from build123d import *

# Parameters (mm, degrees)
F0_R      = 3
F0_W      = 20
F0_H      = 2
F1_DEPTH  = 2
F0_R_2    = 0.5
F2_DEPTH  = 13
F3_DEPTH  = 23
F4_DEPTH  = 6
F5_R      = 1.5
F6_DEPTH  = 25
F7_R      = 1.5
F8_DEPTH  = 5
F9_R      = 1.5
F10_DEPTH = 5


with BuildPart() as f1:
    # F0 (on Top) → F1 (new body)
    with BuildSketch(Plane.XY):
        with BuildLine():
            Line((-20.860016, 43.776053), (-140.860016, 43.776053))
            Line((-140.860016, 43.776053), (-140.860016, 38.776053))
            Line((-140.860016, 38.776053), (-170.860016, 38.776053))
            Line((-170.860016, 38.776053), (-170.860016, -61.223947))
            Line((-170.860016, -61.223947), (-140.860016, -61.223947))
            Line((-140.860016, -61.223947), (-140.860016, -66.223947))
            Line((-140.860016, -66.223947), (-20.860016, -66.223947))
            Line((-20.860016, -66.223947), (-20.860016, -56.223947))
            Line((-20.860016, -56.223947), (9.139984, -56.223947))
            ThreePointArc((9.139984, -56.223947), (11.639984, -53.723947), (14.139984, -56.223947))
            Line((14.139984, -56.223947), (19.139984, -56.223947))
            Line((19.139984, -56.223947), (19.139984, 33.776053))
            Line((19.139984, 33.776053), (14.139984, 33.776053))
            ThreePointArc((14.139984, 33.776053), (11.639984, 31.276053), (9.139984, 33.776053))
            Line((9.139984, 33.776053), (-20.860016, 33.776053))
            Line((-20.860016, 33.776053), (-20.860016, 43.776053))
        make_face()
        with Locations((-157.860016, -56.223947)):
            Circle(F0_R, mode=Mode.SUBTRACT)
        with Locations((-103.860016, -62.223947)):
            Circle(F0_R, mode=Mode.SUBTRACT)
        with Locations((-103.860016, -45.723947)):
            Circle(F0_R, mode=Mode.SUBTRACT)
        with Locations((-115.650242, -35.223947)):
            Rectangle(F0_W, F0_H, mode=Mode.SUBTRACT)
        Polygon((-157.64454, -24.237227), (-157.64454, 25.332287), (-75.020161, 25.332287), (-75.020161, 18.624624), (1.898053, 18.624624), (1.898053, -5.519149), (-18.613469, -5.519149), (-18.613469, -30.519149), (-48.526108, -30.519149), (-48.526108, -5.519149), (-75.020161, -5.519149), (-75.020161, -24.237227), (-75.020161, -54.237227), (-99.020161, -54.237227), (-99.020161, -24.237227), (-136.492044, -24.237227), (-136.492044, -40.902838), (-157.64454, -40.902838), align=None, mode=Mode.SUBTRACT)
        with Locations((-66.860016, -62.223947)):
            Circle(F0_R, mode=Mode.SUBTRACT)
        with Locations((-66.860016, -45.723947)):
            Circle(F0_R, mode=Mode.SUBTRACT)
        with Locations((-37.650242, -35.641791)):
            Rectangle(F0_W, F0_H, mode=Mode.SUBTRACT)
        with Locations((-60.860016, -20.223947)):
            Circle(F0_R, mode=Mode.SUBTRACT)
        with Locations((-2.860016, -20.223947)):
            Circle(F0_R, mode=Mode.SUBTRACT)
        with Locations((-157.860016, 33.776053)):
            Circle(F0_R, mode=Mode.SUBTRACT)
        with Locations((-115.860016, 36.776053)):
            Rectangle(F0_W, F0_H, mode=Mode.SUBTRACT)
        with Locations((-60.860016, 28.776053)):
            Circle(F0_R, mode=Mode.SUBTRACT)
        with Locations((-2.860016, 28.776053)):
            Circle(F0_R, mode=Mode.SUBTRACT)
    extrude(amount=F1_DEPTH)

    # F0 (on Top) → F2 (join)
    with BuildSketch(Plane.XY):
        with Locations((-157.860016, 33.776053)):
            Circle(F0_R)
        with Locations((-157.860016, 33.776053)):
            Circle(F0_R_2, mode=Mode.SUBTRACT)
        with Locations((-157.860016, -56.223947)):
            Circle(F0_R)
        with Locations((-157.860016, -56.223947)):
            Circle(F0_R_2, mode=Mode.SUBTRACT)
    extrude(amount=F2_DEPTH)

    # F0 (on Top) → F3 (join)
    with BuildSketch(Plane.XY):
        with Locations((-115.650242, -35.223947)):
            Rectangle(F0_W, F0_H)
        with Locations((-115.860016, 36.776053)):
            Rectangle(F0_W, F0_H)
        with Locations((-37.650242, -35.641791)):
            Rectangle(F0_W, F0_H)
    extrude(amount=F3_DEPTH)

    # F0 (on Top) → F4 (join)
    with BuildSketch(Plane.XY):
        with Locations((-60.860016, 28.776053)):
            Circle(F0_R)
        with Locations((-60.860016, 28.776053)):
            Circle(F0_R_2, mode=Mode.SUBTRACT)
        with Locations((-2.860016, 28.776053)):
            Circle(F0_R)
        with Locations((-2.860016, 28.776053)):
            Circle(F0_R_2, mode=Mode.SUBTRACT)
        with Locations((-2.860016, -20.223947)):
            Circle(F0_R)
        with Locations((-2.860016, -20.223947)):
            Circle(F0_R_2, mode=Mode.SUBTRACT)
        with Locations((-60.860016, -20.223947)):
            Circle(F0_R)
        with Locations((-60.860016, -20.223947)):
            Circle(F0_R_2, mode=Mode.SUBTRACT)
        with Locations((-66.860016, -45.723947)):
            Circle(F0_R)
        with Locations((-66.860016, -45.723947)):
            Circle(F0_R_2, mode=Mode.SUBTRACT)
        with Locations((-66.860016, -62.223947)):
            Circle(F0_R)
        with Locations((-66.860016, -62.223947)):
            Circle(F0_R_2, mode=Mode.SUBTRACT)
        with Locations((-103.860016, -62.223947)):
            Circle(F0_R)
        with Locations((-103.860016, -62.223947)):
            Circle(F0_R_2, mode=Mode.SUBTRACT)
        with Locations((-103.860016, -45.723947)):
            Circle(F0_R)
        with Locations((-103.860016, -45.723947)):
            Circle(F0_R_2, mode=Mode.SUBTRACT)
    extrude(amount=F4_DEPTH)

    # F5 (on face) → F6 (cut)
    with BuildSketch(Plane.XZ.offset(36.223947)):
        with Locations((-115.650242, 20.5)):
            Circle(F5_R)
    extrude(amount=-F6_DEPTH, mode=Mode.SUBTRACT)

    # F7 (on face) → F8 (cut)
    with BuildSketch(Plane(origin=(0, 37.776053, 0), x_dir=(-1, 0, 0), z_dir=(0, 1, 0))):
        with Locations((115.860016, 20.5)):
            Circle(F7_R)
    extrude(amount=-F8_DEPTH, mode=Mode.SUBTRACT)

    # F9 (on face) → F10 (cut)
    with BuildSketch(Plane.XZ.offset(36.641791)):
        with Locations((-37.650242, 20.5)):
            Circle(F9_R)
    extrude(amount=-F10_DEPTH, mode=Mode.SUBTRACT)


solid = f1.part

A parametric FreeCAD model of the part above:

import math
import FreeCAD as App
import Part
import Sketcher
from FreeCAD import Vector
Q = App.Units.Quantity

doc = App.newDocument("Part")
params = doc.addObject("Spreadsheet::Sheet", "Params")
for row, (alias, value) in enumerate([
    ("sketch1_diameter", "6 mm"),
    ("sketch1_radius", "2.5 mm"),
    ("sketch1_width", "120 mm"),
    ("sketch1_width2", "30 mm"),
    ("sketch1_width3", "5 mm"),
    ("pad1_length", "2 mm"),
    ("sketch2_diameter", "6 mm"),
    ("sketch2_diameter2", "1 mm"),
    ("pad2_length", "13 mm"),
    ("sketch3_width", "20 mm"),
    ("sketch3_height", "2 mm"),
    ("pad3_length", "23 mm"),
    ("sketch4_diameter", "6 mm"),
    ("sketch4_diameter2", "1 mm"),
    ("pad4_length", "6 mm"),
    ("sketch5_diameter", "3 mm"),
    ("pocket1_length", "25 mm"),
    ("sketch6_diameter", "3 mm"),
    ("pocket2_length", "5 mm"),
    ("sketch7_diameter", "3 mm"),
    ("pocket3_length", "5 mm"),
], start=1):
    params.set(f"A{row}", alias)
    params.set(f"B{row}", "=" + value)
    params.setAlias(f"B{row}", alias)

body = doc.addObject("PartDesign::Body", "Body")

sketch1 = doc.addObject("Sketcher::SketchObject", "Sketch")
body.addObject(sketch1)
sketch1.AttachmentSupport = (doc.XY_Plane, [""])
sketch1.MapMode = "FlatFace"
sketch1.addGeometry([
    Part.LineSegment(Vector(-20.9, 43.8, 0), Vector(-140.9, 43.8, 0)),
    Part.LineSegment(Vector(-140.9, 43.8, 0), Vector(-140.9, 38.8, 0)),
    Part.LineSegment(Vector(-140.9, 38.8, 0), Vector(-170.9, 38.8, 0)),
    Part.LineSegment(Vector(-170.9, 38.8, 0), Vector(-170.9, -61.2, 0)),
    Part.LineSegment(Vector(-170.9, -61.2, 0), Vector(-140.9, -61.2, 0)),
    Part.LineSegment(Vector(-140.9, -61.2, 0), Vector(-140.9, -66.2, 0)),
    Part.LineSegment(Vector(-140.9, -66.2, 0), Vector(-20.9, -66.2, 0)),
    Part.LineSegment(Vector(-20.9, -66.2, 0), Vector(-20.9, -56.2, 0)),
    Part.LineSegment(Vector(-20.9, -56.2, 0), Vector(9.1, -56.2, 0)),
    Part.ArcOfCircle(Part.Circle(Vector(11.6, -56.2, 0), Vector(0, 0, 1), 2.5), math.radians(0), math.radians(180)),
    Part.LineSegment(Vector(14.1, -56.2, 0), Vector(19.1, -56.2, 0)),
    Part.LineSegment(Vector(19.1, -56.2, 0), Vector(19.1, 33.8, 0)),
    Part.LineSegment(Vector(19.1, 33.8, 0), Vector(14.1, 33.8, 0)),
    Part.ArcOfCircle(Part.Circle(Vector(11.6, 33.8, 0), Vector(0, 0, 1), 2.5), math.radians(180), math.radians(360)),
    Part.LineSegment(Vector(9.1, 33.8, 0), Vector(-20.9, 33.8, 0)),
    Part.LineSegment(Vector(-20.9, 33.8, 0), Vector(-20.9, 43.8, 0)),
    Part.Circle(Vector(-157.9, -56.2, 0), Vector(0, 0, 1), 3),
    Part.Circle(Vector(-103.9, -62.2, 0), Vector(0, 0, 1), 3),
    Part.Circle(Vector(-103.9, -45.7, 0), Vector(0, 0, 1), 3),
    Part.LineSegment(Vector(-105.7, -36.2, 0), Vector(-125.7, -36.2, 0)),
    Part.LineSegment(Vector(-125.7, -36.2, 0), Vector(-125.7, -34.2, 0)),
    Part.LineSegment(Vector(-125.7, -34.2, 0), Vector(-105.7, -34.2, 0)),
    Part.LineSegment(Vector(-105.7, -34.2, 0), Vector(-105.7, -36.2, 0)),
    Part.Circle(Vector(-66.9, -62.2, 0), Vector(0, 0, 1), 3),
    Part.Circle(Vector(-66.9, -45.7, 0), Vector(0, 0, 1), 3),
    Part.Circle(Vector(-60.9, -20.2, 0), Vector(0, 0, 1), 3),
    Part.LineSegment(Vector(-157.6, -40.9, 0), Vector(-157.6, 25.3, 0)),
    Part.LineSegment(Vector(-157.6, 25.3, 0), Vector(-75, 25.3, 0)),
    Part.LineSegment(Vector(-75, 25.3, 0), Vector(-75, 18.6, 0)),
    Part.LineSegment(Vector(-75, 18.6, 0), Vector(1.9, 18.6, 0)),
    Part.LineSegment(Vector(1.9, 18.6, 0), Vector(1.9, -5.5, 0)),
    Part.LineSegment(Vector(1.9, -5.5, 0), Vector(-18.6, -5.5, 0)),
    Part.LineSegment(Vector(-18.6, -5.5, 0), Vector(-18.6, -30.5, 0)),
    Part.LineSegment(Vector(-18.6, -30.5, 0), Vector(-48.5, -30.5, 0)),
    Part.LineSegment(Vector(-48.5, -30.5, 0), Vector(-48.5, -5.5, 0)),
    Part.LineSegment(Vector(-48.5, -5.5, 0), Vector(-75, -5.5, 0)),
    Part.LineSegment(Vector(-75, -5.5, 0), Vector(-75, -54.2, 0)),
    Part.LineSegment(Vector(-75, -54.2, 0), Vector(-99, -54.2, 0)),
    Part.LineSegment(Vector(-99, -54.2, 0), Vector(-99, -24.2, 0)),
    Part.LineSegment(Vector(-99, -24.2, 0), Vector(-136.5, -24.2, 0)),
    Part.LineSegment(Vector(-136.5, -24.2, 0), Vector(-136.5, -40.9, 0)),
    Part.LineSegment(Vector(-136.5, -40.9, 0), Vector(-157.6, -40.9, 0)),
    Part.LineSegment(Vector(-27.7, -36.6, 0), Vector(-47.7, -36.6, 0)),
    Part.LineSegment(Vector(-47.7, -36.6, 0), Vector(-47.7, -34.6, 0)),
    Part.LineSegment(Vector(-47.7, -34.6, 0), Vector(-27.7, -34.6, 0)),
    Part.LineSegment(Vector(-27.7, -34.6, 0), Vector(-27.7, -36.6, 0)),
    Part.Circle(Vector(-2.9, -20.2, 0), Vector(0, 0, 1), 3),
    Part.Circle(Vector(-157.9, 33.8, 0), Vector(0, 0, 1), 3),
    Part.LineSegment(Vector(-105.9, 35.8, 0), Vector(-125.9, 35.8, 0)),
    Part.LineSegment(Vector(-125.9, 35.8, 0), Vector(-125.9, 37.8, 0)),
    Part.LineSegment(Vector(-125.9, 37.8, 0), Vector(-105.9, 37.8, 0)),
    Part.LineSegment(Vector(-105.9, 37.8, 0), Vector(-105.9, 35.8, 0)),
    Part.Circle(Vector(-60.9, 28.8, 0), Vector(0, 0, 1), 3),
    Part.Circle(Vector(-2.9, 28.8, 0), Vector(0, 0, 1), 3),
], False)
sketch1.addConstraint([
    Sketcher.Constraint("Coincident", 0, 2, 1, 1),
    Sketcher.Constraint("Coincident", 1, 2, 2, 1),
    Sketcher.Constraint("Coincident", 2, 2, 3, 1),
    Sketcher.Constraint("Coincident", 3, 2, 4, 1),
    Sketcher.Constraint("Coincident", 4, 2, 5, 1),
    Sketcher.Constraint("Coincident", 5, 2, 6, 1),
    Sketcher.Constraint("Coincident", 6, 2, 7, 1),
    Sketcher.Constraint("Coincident", 7, 2, 8, 1),
    Sketcher.Constraint("Coincident", 8, 2, 9, 2),
    Sketcher.Constraint("Coincident", 9, 1, 10, 1),
    Sketcher.Constraint("Coincident", 10, 2, 11, 1),
    Sketcher.Constraint("Coincident", 11, 2, 12, 1),
    Sketcher.Constraint("Coincident", 12, 2, 13, 2),
    Sketcher.Constraint("Coincident", 13, 1, 14, 1),
    Sketcher.Constraint("Coincident", 14, 2, 15, 1),
    Sketcher.Constraint("Coincident", 15, 2, 0, 1),
    Sketcher.Constraint("Coincident", 19, 2, 20, 1),
    Sketcher.Constraint("Coincident", 20, 2, 21, 1),
    Sketcher.Constraint("Coincident", 21, 2, 22, 1),
    Sketcher.Constraint("Coincident", 22, 2, 19, 1),
    Sketcher.Constraint("Coincident", 26, 2, 27, 1),
    Sketcher.Constraint("Coincident", 27, 2, 28, 1),
    Sketcher.Constraint("Coincident", 28, 2, 29, 1),
    Sketcher.Constraint("Coincident", 29, 2, 30, 1),
    Sketcher.Constraint("Coincident", 30, 2, 31, 1),
    Sketcher.Constraint("Coincident", 31, 2, 32, 1),
    Sketcher.Constraint("Coincident", 32, 2, 33, 1),
    Sketcher.Constraint("Coincident", 33, 2, 34, 1),
    Sketcher.Constraint("Coincident", 34, 2, 35, 1),
    Sketcher.Constraint("Coincident", 35, 2, 36, 1),
    Sketcher.Constraint("Coincident", 36, 2, 37, 1),
    Sketcher.Constraint("Coincident", 37, 2, 38, 1),
    Sketcher.Constraint("Coincident", 38, 2, 39, 1),
    Sketcher.Constraint("Coincident", 39, 2, 40, 1),
    Sketcher.Constraint("Coincident", 40, 2, 41, 1),
    Sketcher.Constraint("Coincident", 41, 2, 26, 1),
    Sketcher.Constraint("Coincident", 42, 2, 43, 1),
    Sketcher.Constraint("Coincident", 43, 2, 44, 1),
    Sketcher.Constraint("Coincident", 44, 2, 45, 1),
    Sketcher.Constraint("Coincident", 45, 2, 42, 1),
    Sketcher.Constraint("Coincident", 48, 2, 49, 1),
    Sketcher.Constraint("Coincident", 49, 2, 50, 1),
    Sketcher.Constraint("Coincident", 50, 2, 51, 1),
    Sketcher.Constraint("Coincident", 51, 2, 48, 1),
    Sketcher.Constraint("Horizontal", 0),
    Sketcher.Constraint("Vertical", 1),
    Sketcher.Constraint("Horizontal", 2),
    Sketcher.Constraint("Vertical", 3),
    Sketcher.Constraint("Horizontal", 4),
    Sketcher.Constraint("Vertical", 5),
    Sketcher.Constraint("Horizontal", 6),
    Sketcher.Constraint("Vertical", 7),
    Sketcher.Constraint("Horizontal", 8),
    Sketcher.Constraint("Horizontal", 10),
    Sketcher.Constraint("Vertical", 11),
    Sketcher.Constraint("Horizontal", 12),
    Sketcher.Constraint("Horizontal", 14),
    Sketcher.Constraint("Vertical", 15),
    Sketcher.Constraint("Horizontal", 19),
    Sketcher.Constraint("Vertical", 20),
    Sketcher.Constraint("Horizontal", 21),
    Sketcher.Constraint("Vertical", 22),
    Sketcher.Constraint("Vertical", 26),
    Sketcher.Constraint("Horizontal", 27),
    Sketcher.Constraint("Vertical", 28),
    Sketcher.Constraint("Horizontal", 29),
    Sketcher.Constraint("Vertical", 30),
    Sketcher.Constraint("Horizontal", 31),
    Sketcher.Constraint("Vertical", 32),
    Sketcher.Constraint("Horizontal", 33),
    Sketcher.Constraint("Vertical", 34),
    Sketcher.Constraint("Horizontal", 35),
    Sketcher.Constraint("Vertical", 36),
    Sketcher.Constraint("Horizontal", 37),
    Sketcher.Constraint("Vertical", 38),
    Sketcher.Constraint("Horizontal", 39),
    Sketcher.Constraint("Vertical", 40),
    Sketcher.Constraint("Horizontal", 41),
    Sketcher.Constraint("Horizontal", 42),
    Sketcher.Constraint("Vertical", 43),
    Sketcher.Constraint("Horizontal", 44),
    Sketcher.Constraint("Vertical", 45),
    Sketcher.Constraint("Horizontal", 48),
    Sketcher.Constraint("Vertical", 49),
    Sketcher.Constraint("Horizontal", 50),
    Sketcher.Constraint("Vertical", 51),
    Sketcher.Constraint("Equal", 9, 13),
    Sketcher.Constraint("Equal", 16, 17),
    Sketcher.Constraint("Equal", 17, 18),
    Sketcher.Constraint("Equal", 18, 23),
    Sketcher.Constraint("Equal", 23, 24),
    Sketcher.Constraint("Equal", 24, 25),
    Sketcher.Constraint("Equal", 25, 46),
    Sketcher.Constraint("Equal", 46, 47),
    Sketcher.Constraint("Equal", 47, 52),
    Sketcher.Constraint("Equal", 52, 53),
    Sketcher.Constraint("Horizontal", 9, 3, 16, 3),
    Sketcher.Constraint("Horizontal", 17, 3, 23, 3),
    Sketcher.Constraint("Horizontal", 18, 3, 24, 3),
    Sketcher.Constraint("Horizontal", 25, 3, 46, 3),
    Sketcher.Constraint("Horizontal", 13, 3, 47, 3),
    Sketcher.Constraint("Horizontal", 52, 3, 53, 3),
    Sketcher.Constraint("Horizontal", 16, 3, 7, 2),
    Sketcher.Constraint("Horizontal", 8, 2, 9, 1),
    Sketcher.Constraint("Horizontal", 47, 3, 11, 2),
    Sketcher.Constraint("Horizontal", 12, 2, 13, 1),
    Sketcher.Constraint("Horizontal", 31, 2, 34, 2),
    Sketcher.Constraint("Vertical", 9, 3, 13, 3),
    Sketcher.Constraint("Vertical", 17, 3, 18, 3),
    Sketcher.Constraint("Vertical", 23, 3, 24, 3),
    Sketcher.Constraint("Vertical", 16, 3, 47, 3),
    Sketcher.Constraint("Vertical", 25, 3, 52, 3),
    Sketcher.Constraint("Vertical", 46, 3, 53, 3),
    Sketcher.Constraint("Vertical", 1, 2, 4, 2),
    Sketcher.Constraint("Vertical", 7, 2, 14, 2),
    Sketcher.Constraint("Vertical", 28, 2, 35, 2),
    Sketcher.Constraint("Equal", 4, 8),
    Sketcher.Constraint("Equal", 21, 42),
    Sketcher.Constraint("Equal", 44, 48),
    Sketcher.Constraint("Equal", 12, 1),
    Sketcher.Constraint("Equal", 1, 5),
    Sketcher.Constraint("Equal", 7, 15),
    Sketcher.Constraint("Equal", 14, 38),
    Sketcher.Constraint("Equal", 22, 43),
    Sketcher.Constraint("Equal", 45, 49),
    Sketcher.Constraint("Diameter", 16, Q("6 mm")),
    Sketcher.Constraint("Radius", 9, Q("2.5 mm")),
    Sketcher.Constraint("DistanceX", 0, 2, 0, 1, Q("120 mm")),
    Sketcher.Constraint("DistanceX", 2, 2, 2, 1, Q("30 mm")),
    Sketcher.Constraint("DistanceX", 10, 1, 10, 2, Q("5 mm")),
    Sketcher.Constraint("DistanceX", 19, 2, 19, 1, Q("20 mm")),
    Sketcher.Constraint("DistanceX", 37, 2, 37, 1, Q("24 mm")),
    Sketcher.Constraint("DistanceY", 3, 2, 3, 1, Q("100 mm")),
    Sketcher.Constraint("DistanceY", 7, 1, 7, 2, Q("10 mm")),
    Sketcher.Constraint("DistanceY", 20, 1, 20, 2, Q("2 mm")),
    Sketcher.Constraint("DistanceY", 32, 2, 32, 1, Q("25 mm")),
    Sketcher.Constraint("DistanceX", 16, 3, 17, 3, Q("54 mm")),
    Sketcher.Constraint("DistanceY", 17, 3, 16, 3, Q("6 mm")),
    Sketcher.Constraint("DistanceX", 17, 3, 23, 3, Q("37 mm")),
    Sketcher.Constraint("DistanceX", 24, 3, 25, 3, Q("6 mm")),
    Sketcher.Constraint("DistanceY", 23, 3, 25, 3, Q("42 mm")),
    Sketcher.Constraint("DistanceX", 25, 3, 46, 3, Q("58 mm")),
    Sketcher.Constraint("DistanceY", 25, 3, 52, 3, Q("49 mm")),
    Sketcher.Constraint("DistanceX", 47, 3, 0, 2, Q("17 mm")),
    Sketcher.Constraint("DistanceY", 4, 2, 19, 2, Q("25 mm")),
    Sketcher.Constraint("DistanceX", 1, 2, 48, 2, Q("15 mm")),
    Sketcher.Constraint("DistanceY", 48, 2, 1, 2, Q("3 mm")),
    Sketcher.Constraint("DistanceY", 17, 3, 18, 3, Q("16.5 mm")),
    Sketcher.Constraint("DistanceX", 27, 1, 27, 2, Q("82.624379 mm")),
    Sketcher.Constraint("DistanceX", 31, 2, 31, 1, Q("20.511522 mm")),
    Sketcher.Constraint("DistanceX", 33, 2, 33, 1, Q("29.912639 mm")),
    Sketcher.Constraint("DistanceY", 40, 2, 40, 1, Q("16.665611 mm")),
    Sketcher.Constraint("DistanceX", 26, 2, 20, 2, Q("31.994298 mm")),
    Sketcher.Constraint("DistanceY", 30, 2, 13, 1, Q("39.295202 mm")),
    Sketcher.Constraint("DistanceX", 39, 2, 20, 2, Q("10.841802 mm")),
    Sketcher.Constraint("DistanceX", 29, 1, 29, 2, Q("76.918214 mm")),
    Sketcher.Constraint("DistanceY", 26, 1, 26, 2, Q("66.235125 mm")),
    Sketcher.Constraint("DistanceY", 28, 2, 28, 1, Q("6.707663 mm")),
    Sketcher.Constraint("DistanceY", 30, 2, 30, 1, Q("24.143773 mm")),
    Sketcher.Constraint("DistanceX", 26, 2, -1, 1, Q("157.64454 mm")),
    Sketcher.Constraint("DistanceY", 30, 2, -1, 1, Q("5.519149 mm")),
    Sketcher.Constraint("DistanceY", 42, 2, -1, 1, Q("36.641791 mm")),
    Sketcher.Constraint("DistanceX", 44, 2, -1, 1, Q("27.650242 mm")),
    Sketcher.Constraint("DistanceX", 53, 3, 29, 2, Q("4.758069 mm")),
])
sketch1.setExpression("Constraints[125]", "Params.sketch1_diameter")
sketch1.setExpression("Constraints[126]", "Params.sketch1_radius")
sketch1.setExpression("Constraints[127]", "Params.sketch1_width")
sketch1.setExpression("Constraints[128]", "Params.sketch1_width2")
sketch1.setExpression("Constraints[129]", "Params.sketch1_width3")
pad1 = doc.addObject("PartDesign::Pad", "Pad")
body.addObject(pad1)
pad1.Profile = sketch1
pad1.setExpression("Length", "Params.pad1_length")

sketch2 = doc.addObject("Sketcher::SketchObject", "Sketch001")
body.addObject(sketch2)
sketch2.AttachmentSupport = (doc.XY_Plane, [""])
sketch2.MapMode = "FlatFace"
sketch2.addGeometry([
    Part.Circle(Vector(-157.9, 33.8, 0), Vector(0, 0, 1), 3),
    Part.Circle(Vector(-157.9, 33.8, 0), Vector(0, 0, 1), 0.5),
    Part.Circle(Vector(-157.9, -56.2, 0), Vector(0, 0, 1), 3),
    Part.Circle(Vector(-157.9, -56.2, 0), Vector(0, 0, 1), 0.5),
], False)
sketch2.addConstraint([
    Sketcher.Constraint("Coincident", 1, 3, 0, 3),
    Sketcher.Constraint("Coincident", 3, 3, 2, 3),
    Sketcher.Constraint("Equal", 0, 2),
    Sketcher.Constraint("Equal", 1, 3),
    Sketcher.Constraint("Vertical", 1, 3, 2, 3),
    Sketcher.Constraint("Diameter", 0, Q("6 mm")),
    Sketcher.Constraint("Diameter", 1, Q("1 mm")),
    Sketcher.Constraint("DistanceY", 2, 3, 0, 3, Q("90 mm")),
    Sketcher.Constraint("DistanceX", 0, 3, -1, 1, Q("157.860016 mm")),
    Sketcher.Constraint("DistanceY", -1, 1, 0, 3, Q("33.776053 mm")),
])
sketch2.setExpression("Constraints[5]", "Params.sketch2_diameter")
sketch2.setExpression("Constraints[6]", "Params.sketch2_diameter2")
pad2 = doc.addObject("PartDesign::Pad", "Pad001")
body.addObject(pad2)
pad2.Profile = sketch2
pad2.setExpression("Length", "Params.pad2_length")

sketch3 = doc.addObject("Sketcher::SketchObject", "Sketch002")
body.addObject(sketch3)
sketch3.AttachmentSupport = (doc.XY_Plane, [""])
sketch3.MapMode = "FlatFace"
sketch3.addGeometry([
    Part.LineSegment(Vector(-125.7, -34.2, 0), Vector(-125.7, -36.2, 0)),
    Part.LineSegment(Vector(-125.7, -36.2, 0), Vector(-105.7, -36.2, 0)),
    Part.LineSegment(Vector(-105.7, -36.2, 0), Vector(-105.7, -34.2, 0)),
    Part.LineSegment(Vector(-105.7, -34.2, 0), Vector(-125.7, -34.2, 0)),
    Part.LineSegment(Vector(-125.9, 37.8, 0), Vector(-125.9, 35.8, 0)),
    Part.LineSegment(Vector(-125.9, 35.8, 0), Vector(-105.9, 35.8, 0)),
    Part.LineSegment(Vector(-105.9, 35.8, 0), Vector(-105.9, 37.8, 0)),
    Part.LineSegment(Vector(-105.9, 37.8, 0), Vector(-125.9, 37.8, 0)),
    Part.LineSegment(Vector(-47.7, -34.6, 0), Vector(-47.7, -36.6, 0)),
    Part.LineSegment(Vector(-47.7, -36.6, 0), Vector(-27.7, -36.6, 0)),
    Part.LineSegment(Vector(-27.7, -36.6, 0), Vector(-27.7, -34.6, 0)),
    Part.LineSegment(Vector(-27.7, -34.6, 0), Vector(-47.7, -34.6, 0)),
], False)
sketch3.addConstraint([
    Sketcher.Constraint("Coincident", 0, 2, 1, 1),
    Sketcher.Constraint("Coincident", 1, 2, 2, 1),
    Sketcher.Constraint("Coincident", 2, 2, 3, 1),
    Sketcher.Constraint("Coincident", 3, 2, 0, 1),
    Sketcher.Constraint("Coincident", 4, 2, 5, 1),
    Sketcher.Constraint("Coincident", 5, 2, 6, 1),
    Sketcher.Constraint("Coincident", 6, 2, 7, 1),
    Sketcher.Constraint("Coincident", 7, 2, 4, 1),
    Sketcher.Constraint("Coincident", 8, 2, 9, 1),
    Sketcher.Constraint("Coincident", 9, 2, 10, 1),
    Sketcher.Constraint("Coincident", 10, 2, 11, 1),
    Sketcher.Constraint("Coincident", 11, 2, 8, 1),
    Sketcher.Constraint("Vertical", 0),
    Sketcher.Constraint("Horizontal", 1),
    Sketcher.Constraint("Vertical", 2),
    Sketcher.Constraint("Horizontal", 3),
    Sketcher.Constraint("Vertical", 4),
    Sketcher.Constraint("Horizontal", 5),
    Sketcher.Constraint("Vertical", 6),
    Sketcher.Constraint("Horizontal", 7),
    Sketcher.Constraint("Vertical", 8),
    Sketcher.Constraint("Horizontal", 9),
    Sketcher.Constraint("Vertical", 10),
    Sketcher.Constraint("Horizontal", 11),
    Sketcher.Constraint("Equal", 3, 5),
    Sketcher.Constraint("Equal", 7, 9),
    Sketcher.Constraint("Equal", 2, 4),
    Sketcher.Constraint("Equal", 6, 8),
    Sketcher.Constraint("DistanceX", 1, 1, 1, 2, Q("20 mm")),
    Sketcher.Constraint("DistanceY", 0, 2, 0, 1, Q("2 mm")),
    Sketcher.Constraint("DistanceY", 3, 2, 4, 2, Q("70 mm")),
    Sketcher.Constraint("DistanceX", 1, 2, 8, 2, Q("58 mm")),
    Sketcher.Constraint("DistanceY", 8, 2, -1, 1, Q("36.641791 mm")),
    Sketcher.Constraint("DistanceX", 9, 2, -1, 1, Q("27.650242 mm")),
    Sketcher.Constraint("DistanceY", 0, 2, -1, 1, Q("36.223947 mm")),
    Sketcher.Constraint("DistanceX", 4, 2, -1, 1, Q("125.860016 mm")),
])
sketch3.setExpression("Constraints[28]", "Params.sketch3_width")
sketch3.setExpression("Constraints[29]", "Params.sketch3_height")
pad3 = doc.addObject("PartDesign::Pad", "Pad002")
body.addObject(pad3)
pad3.Profile = sketch3
pad3.setExpression("Length", "Params.pad3_length")

sketch4 = doc.addObject("Sketcher::SketchObject", "Sketch003")
body.addObject(sketch4)
sketch4.AttachmentSupport = (doc.XY_Plane, [""])
sketch4.MapMode = "FlatFace"
sketch4.addGeometry([
    Part.Circle(Vector(-60.9, 28.8, 0), Vector(0, 0, 1), 3),
    Part.Circle(Vector(-60.9, 28.8, 0), Vector(0, 0, 1), 0.5),
    Part.Circle(Vector(-2.9, 28.8, 0), Vector(0, 0, 1), 3),
    Part.Circle(Vector(-2.9, 28.8, 0), Vector(0, 0, 1), 0.5),
    Part.Circle(Vector(-2.9, -20.2, 0), Vector(0, 0, 1), 3),
    Part.Circle(Vector(-2.9, -20.2, 0), Vector(0, 0, 1), 0.5),
    Part.Circle(Vector(-60.9, -20.2, 0), Vector(0, 0, 1), 3),
    Part.Circle(Vector(-60.9, -20.2, 0), Vector(0, 0, 1), 0.5),
    Part.Circle(Vector(-66.9, -45.7, 0), Vector(0, 0, 1), 3),
    Part.Circle(Vector(-66.9, -45.7, 0), Vector(0, 0, 1), 0.5),
    Part.Circle(Vector(-66.9, -62.2, 0), Vector(0, 0, 1), 3),
    Part.Circle(Vector(-66.9, -62.2, 0), Vector(0, 0, 1), 0.5),
    Part.Circle(Vector(-103.9, -62.2, 0), Vector(0, 0, 1), 3),
    Part.Circle(Vector(-103.9, -62.2, 0), Vector(0, 0, 1), 0.5),
    Part.Circle(Vector(-103.9, -45.7, 0), Vector(0, 0, 1), 3),
    Part.Circle(Vector(-103.9, -45.7, 0), Vector(0, 0, 1), 0.5),
], False)
sketch4.addConstraint([
    Sketcher.Constraint("Coincident", 1, 3, 0, 3),
    Sketcher.Constraint("Coincident", 3, 3, 2, 3),
    Sketcher.Constraint("Coincident", 5, 3, 4, 3),
    Sketcher.Constraint("Coincident", 7, 3, 6, 3),
    Sketcher.Constraint("Coincident", 9, 3, 8, 3),
    Sketcher.Constraint("Coincident", 11, 3, 10, 3),
    Sketcher.Constraint("Coincident", 13, 3, 12, 3),
    Sketcher.Constraint("Coincident", 15, 3, 14, 3),
    Sketcher.Constraint("Equal", 0, 2),
    Sketcher.Constraint("Equal", 1, 3),
    Sketcher.Constraint("Equal", 2, 4),
    Sketcher.Constraint("Equal", 3, 5),
    Sketcher.Constraint("Equal", 4, 6),
    Sketcher.Constraint("Equal", 5, 7),
    Sketcher.Constraint("Equal", 6, 8),
    Sketcher.Constraint("Equal", 7, 9),
    Sketcher.Constraint("Equal", 8, 10),
    Sketcher.Constraint("Equal", 9, 11),
    Sketcher.Constraint("Equal", 10, 12),
    Sketcher.Constraint("Equal", 11, 13),
    Sketcher.Constraint("Equal", 12, 14),
    Sketcher.Constraint("Equal", 13, 15),
    Sketcher.Constraint("Horizontal", 1, 3, 2, 3),
    Sketcher.Constraint("Horizontal", 5, 3, 6, 3),
    Sketcher.Constraint("Horizontal", 11, 3, 12, 3),
    Sketcher.Constraint("Horizontal", 9, 3, 14, 3),
    Sketcher.Constraint("Vertical", 3, 3, 4, 3),
    Sketcher.Constraint("Vertical", 1, 3, 6, 3),
    Sketcher.Constraint("Vertical", 9, 3, 10, 3),
    Sketcher.Constraint("Vertical", 13, 3, 14, 3),
    Sketcher.Constraint("Diameter", 0, Q("6 mm")),
    Sketcher.Constraint("Diameter", 1, Q("1 mm")),
    Sketcher.Constraint("DistanceX", 0, 3, 2, 3, Q("58 mm")),
    Sketcher.Constraint("DistanceY", 4, 3, 2, 3, Q("49 mm")),
    Sketcher.Constraint("DistanceX", 8, 3, 6, 3, Q("6 mm")),
    Sketcher.Constraint("DistanceY", 10, 3, 6, 3, Q("42 mm")),
    Sketcher.Constraint("DistanceX", 12, 3, 10, 3, Q("37 mm")),
    Sketcher.Constraint("DistanceY", 8, 3, 6, 3, Q("25.5 mm")),
    Sketcher.Constraint("DistanceX", 0, 3, -1, 1, Q("60.860016 mm")),
    Sketcher.Constraint("DistanceY", -1, 1, 0, 3, Q("28.776053 mm")),
])
sketch4.setExpression("Constraints[30]", "Params.sketch4_diameter")
sketch4.setExpression("Constraints[31]", "Params.sketch4_diameter2")
pad4 = doc.addObject("PartDesign::Pad", "Pad003")
body.addObject(pad4)
pad4.Profile = sketch4
pad4.setExpression("Length", "Params.pad4_length")

sketch5 = doc.addObject("Sketcher::SketchObject", "Sketch004")
body.addObject(sketch5)
sketch5.AttachmentSupport = (doc.XZ_Plane, [""])
sketch5.MapMode = "FlatFace"
sketch5.AttachmentOffset = App.Placement(Vector(0, 0, 36.223947), App.Rotation())
sketch5.addGeometry(Part.Circle(Vector(-115.7, 20.5, 0), Vector(0, 0, 1), 1.5), False)
sketch5.addConstraint([
    Sketcher.Constraint("Diameter", 0, Q("3 mm")),
    Sketcher.Constraint("DistanceY", -1, 1, 0, 3, Q("20.5 mm")),
    Sketcher.Constraint("DistanceX", 0, 3, -1, 1, Q("115.650242 mm")),
])
sketch5.setExpression("Constraints[0]", "Params.sketch5_diameter")
pocket1 = doc.addObject("PartDesign::Pocket", "Pocket")
body.addObject(pocket1)
pocket1.Profile = sketch5
pocket1.setExpression("Length", "Params.pocket1_length")

sketch6 = doc.addObject("Sketcher::SketchObject", "Sketch005")
body.addObject(sketch6)
sketch6.AttachmentSupport = (doc.XZ_Plane, [""])
sketch6.MapMode = "FlatFace"
sketch6.AttachmentOffset = App.Placement(Vector(0, 0, -37.776053), App.Rotation())
sketch6.addGeometry(Part.Circle(Vector(-115.9, 20.5, 0), Vector(0, 0, 1), 1.5), False)
sketch6.addConstraint([
    Sketcher.Constraint("Diameter", 0, Q("3 mm")),
    Sketcher.Constraint("DistanceY", -1, 1, 0, 3, Q("20.5 mm")),
    Sketcher.Constraint("DistanceX", 0, 3, -1, 1, Q("115.860016 mm")),
])
sketch6.setExpression("Constraints[0]", "Params.sketch6_diameter")
pocket2 = doc.addObject("PartDesign::Pocket", "Pocket001")
body.addObject(pocket2)
pocket2.Profile = sketch6
pocket2.setExpression("Length", "Params.pocket2_length")
pocket2.Reversed = True

sketch7 = doc.addObject("Sketcher::SketchObject", "Sketch006")
body.addObject(sketch7)
sketch7.AttachmentSupport = (doc.XZ_Plane, [""])
sketch7.MapMode = "FlatFace"
sketch7.AttachmentOffset = App.Placement(Vector(0, 0, 36.641791), App.Rotation())
sketch7.addGeometry(Part.Circle(Vector(-37.7, 20.5, 0), Vector(0, 0, 1), 1.5), False)
sketch7.addConstraint([
    Sketcher.Constraint("Diameter", 0, Q("3 mm")),
    Sketcher.Constraint("DistanceY", -1, 1, 0, 3, Q("20.5 mm")),
    Sketcher.Constraint("DistanceX", 0, 3, -1, 1, Q("37.650242 mm")),
])
sketch7.setExpression("Constraints[0]", "Params.sketch7_diameter")
pocket3 = doc.addObject("PartDesign::Pocket", "Pocket002")
body.addObject(pocket3)
pocket3.Profile = sketch7
pocket3.setExpression("Length", "Params.pocket3_length")

doc.recompute()
